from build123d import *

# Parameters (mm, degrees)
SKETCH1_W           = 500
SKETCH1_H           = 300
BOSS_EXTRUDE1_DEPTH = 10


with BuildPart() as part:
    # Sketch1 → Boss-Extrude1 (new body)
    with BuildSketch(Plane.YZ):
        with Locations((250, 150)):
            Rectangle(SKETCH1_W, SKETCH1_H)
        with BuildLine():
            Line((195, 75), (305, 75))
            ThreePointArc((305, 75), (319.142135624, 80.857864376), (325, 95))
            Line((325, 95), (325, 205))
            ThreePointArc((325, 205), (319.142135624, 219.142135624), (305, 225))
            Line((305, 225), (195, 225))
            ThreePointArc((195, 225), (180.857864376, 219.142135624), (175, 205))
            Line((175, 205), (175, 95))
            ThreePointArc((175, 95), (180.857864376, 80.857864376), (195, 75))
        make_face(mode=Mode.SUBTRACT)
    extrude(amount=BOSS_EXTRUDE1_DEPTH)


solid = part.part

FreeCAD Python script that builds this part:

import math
import FreeCAD as App
import Part
import Sketcher

V = App.Vector

doc = App.newDocument("Part")
params = doc.addObject("Spreadsheet::Sheet", "Params")
for row, (alias, value) in enumerate([
    ("sketch1_radius", "20 mm"),
    ("sketch1_width", "500 mm"),
    ("sketch1_width2", "110 mm"),
    ("sketch1_height", "300 mm"),
    ("pad1_length", "10 mm"),
], start=1):
    params.set(f"A{row}", alias)
    params.set(f"B{row}", "=" + value)
    params.setAlias(f"B{row}", alias)

body = doc.addObject("PartDesign::Body", "Body")

sketch1 = doc.addObject("Sketcher::SketchObject", "Sketch")
body.addObject(sketch1)
sketch1.AttachmentSupport = (doc.YZ_Plane, [""])
sketch1.MapMode = "FlatFace"
sketch1.addGeometry([
    Part.LineSegment(V(0, 300, 0), V(0, 0, 0)),
    Part.LineSegment(V(0, 0, 0), V(500, 0, 0)),
    Part.LineSegment(V(500, 0, 0), V(500, 300, 0)),
    Part.LineSegment(V(500, 300, 0), V(0, 300, 0)),
    Part.LineSegment(V(305, 75, 0), V(195, 75, 0)),
    Part.ArcOfCircle(Part.Circle(V(195, 95, 0), V(0, 0, 1), 20), math.radians(180), math.radians(270)),
    Part.LineSegment(V(175, 95, 0), V(175, 205, 0)),
    Part.ArcOfCircle(Part.Circle(V(195, 205, 0), V(0, 0, 1), 20), math.radians(90), math.radians(180)),
    Part.LineSegment(V(195, 225, 0), V(305, 225, 0)),
    Part.ArcOfCircle(Part.Circle(V(305, 205, 0), V(0, 0, 1), 20), math.radians(0), math.radians(90)),
    Part.LineSegment(V(325, 205, 0), V(325, 95, 0)),
    Part.ArcOfCircle(Part.Circle(V(305, 95, 0), V(0, 0, 1), 20), math.radians(-90), math.radians(0)),
], False)
sketch1.addConstraint([
    Sketcher.Constraint("Coincident", 0, 2, 1, 1),
    Sketcher.Constraint("Coincident", 1, 2, 2, 1),
    Sketcher.Constraint("Coincident", 2, 2, 3, 1),
    Sketcher.Constraint("Coincident", 3, 2, 0, 1),
    Sketcher.Constraint("Tangent", 4, 2, 5, 2),
    Sketcher.Constraint("Tangent", 5, 1, 6, 1),
    Sketcher.Constraint("Tangent", 6, 2, 7, 2),
    Sketcher.Constraint("Tangent", 7, 1, 8, 1),
    Sketcher.Constraint("Tangent", 8, 2, 9, 2),
    Sketcher.Constraint("Tangent", 9, 1, 10, 1),
    Sketcher.Constraint("Tangent", 10, 2, 11, 2),
    Sketcher.Constraint("Tangent", 11, 1, 4, 1),
    Sketcher.Constraint("Vertical", 0),
    Sketcher.Constraint("Horizontal", 1),
    Sketcher.Constraint("Vertical", 2),
    Sketcher.Constraint("Horizontal", 3),
    Sketcher.Constraint("Horizontal", 4),
    Sketcher.Constraint("Vertical", 6),
    Sketcher.Constraint("Horizontal", 8),
    Sketcher.Constraint("Vertical", 10),
    Sketcher.Constraint("Coincident", 0, 2, -1, 1),
    Sketcher.Constraint("Equal", 5, 7),
    Sketcher.Constraint("Equal", 7, 9),
    Sketcher.Constraint("Equal", 9, 11),
    Sketcher.Constraint("Equal", 8, 6),
    Sketcher.Constraint("Radius", 5, 20.0),
    Sketcher.Constraint("DistanceX", 1, 1, 1, 2, 500.0),
    Sketcher.Constraint("DistanceX", 4, 2, 4, 1, 110.0),
    Sketcher.Constraint("DistanceY", 0, 2, 0, 1, 300.0),
    Sketcher.Constraint("DistanceX", -1, 1, 5, 3, 195.0),
    Sketcher.Constraint("DistanceY", -1, 1, 5, 3, 95.0),
])
sketch1.setExpression("Constraints[25]", "Params.sketch1_radius")
sketch1.setExpression("Constraints[26]", "Params.sketch1_width")
sketch1.setExpression("Constraints[27]", "Params.sketch1_width2")
sketch1.setExpression("Constraints[28]", "Params.sketch1_height")
pad1 = doc.addObject("PartDesign::Pad", "Pad")
body.addObject(pad1)
pad1.Profile = sketch1
pad1.setExpression("Length", "Params.pad1_length")

doc.recompute()
